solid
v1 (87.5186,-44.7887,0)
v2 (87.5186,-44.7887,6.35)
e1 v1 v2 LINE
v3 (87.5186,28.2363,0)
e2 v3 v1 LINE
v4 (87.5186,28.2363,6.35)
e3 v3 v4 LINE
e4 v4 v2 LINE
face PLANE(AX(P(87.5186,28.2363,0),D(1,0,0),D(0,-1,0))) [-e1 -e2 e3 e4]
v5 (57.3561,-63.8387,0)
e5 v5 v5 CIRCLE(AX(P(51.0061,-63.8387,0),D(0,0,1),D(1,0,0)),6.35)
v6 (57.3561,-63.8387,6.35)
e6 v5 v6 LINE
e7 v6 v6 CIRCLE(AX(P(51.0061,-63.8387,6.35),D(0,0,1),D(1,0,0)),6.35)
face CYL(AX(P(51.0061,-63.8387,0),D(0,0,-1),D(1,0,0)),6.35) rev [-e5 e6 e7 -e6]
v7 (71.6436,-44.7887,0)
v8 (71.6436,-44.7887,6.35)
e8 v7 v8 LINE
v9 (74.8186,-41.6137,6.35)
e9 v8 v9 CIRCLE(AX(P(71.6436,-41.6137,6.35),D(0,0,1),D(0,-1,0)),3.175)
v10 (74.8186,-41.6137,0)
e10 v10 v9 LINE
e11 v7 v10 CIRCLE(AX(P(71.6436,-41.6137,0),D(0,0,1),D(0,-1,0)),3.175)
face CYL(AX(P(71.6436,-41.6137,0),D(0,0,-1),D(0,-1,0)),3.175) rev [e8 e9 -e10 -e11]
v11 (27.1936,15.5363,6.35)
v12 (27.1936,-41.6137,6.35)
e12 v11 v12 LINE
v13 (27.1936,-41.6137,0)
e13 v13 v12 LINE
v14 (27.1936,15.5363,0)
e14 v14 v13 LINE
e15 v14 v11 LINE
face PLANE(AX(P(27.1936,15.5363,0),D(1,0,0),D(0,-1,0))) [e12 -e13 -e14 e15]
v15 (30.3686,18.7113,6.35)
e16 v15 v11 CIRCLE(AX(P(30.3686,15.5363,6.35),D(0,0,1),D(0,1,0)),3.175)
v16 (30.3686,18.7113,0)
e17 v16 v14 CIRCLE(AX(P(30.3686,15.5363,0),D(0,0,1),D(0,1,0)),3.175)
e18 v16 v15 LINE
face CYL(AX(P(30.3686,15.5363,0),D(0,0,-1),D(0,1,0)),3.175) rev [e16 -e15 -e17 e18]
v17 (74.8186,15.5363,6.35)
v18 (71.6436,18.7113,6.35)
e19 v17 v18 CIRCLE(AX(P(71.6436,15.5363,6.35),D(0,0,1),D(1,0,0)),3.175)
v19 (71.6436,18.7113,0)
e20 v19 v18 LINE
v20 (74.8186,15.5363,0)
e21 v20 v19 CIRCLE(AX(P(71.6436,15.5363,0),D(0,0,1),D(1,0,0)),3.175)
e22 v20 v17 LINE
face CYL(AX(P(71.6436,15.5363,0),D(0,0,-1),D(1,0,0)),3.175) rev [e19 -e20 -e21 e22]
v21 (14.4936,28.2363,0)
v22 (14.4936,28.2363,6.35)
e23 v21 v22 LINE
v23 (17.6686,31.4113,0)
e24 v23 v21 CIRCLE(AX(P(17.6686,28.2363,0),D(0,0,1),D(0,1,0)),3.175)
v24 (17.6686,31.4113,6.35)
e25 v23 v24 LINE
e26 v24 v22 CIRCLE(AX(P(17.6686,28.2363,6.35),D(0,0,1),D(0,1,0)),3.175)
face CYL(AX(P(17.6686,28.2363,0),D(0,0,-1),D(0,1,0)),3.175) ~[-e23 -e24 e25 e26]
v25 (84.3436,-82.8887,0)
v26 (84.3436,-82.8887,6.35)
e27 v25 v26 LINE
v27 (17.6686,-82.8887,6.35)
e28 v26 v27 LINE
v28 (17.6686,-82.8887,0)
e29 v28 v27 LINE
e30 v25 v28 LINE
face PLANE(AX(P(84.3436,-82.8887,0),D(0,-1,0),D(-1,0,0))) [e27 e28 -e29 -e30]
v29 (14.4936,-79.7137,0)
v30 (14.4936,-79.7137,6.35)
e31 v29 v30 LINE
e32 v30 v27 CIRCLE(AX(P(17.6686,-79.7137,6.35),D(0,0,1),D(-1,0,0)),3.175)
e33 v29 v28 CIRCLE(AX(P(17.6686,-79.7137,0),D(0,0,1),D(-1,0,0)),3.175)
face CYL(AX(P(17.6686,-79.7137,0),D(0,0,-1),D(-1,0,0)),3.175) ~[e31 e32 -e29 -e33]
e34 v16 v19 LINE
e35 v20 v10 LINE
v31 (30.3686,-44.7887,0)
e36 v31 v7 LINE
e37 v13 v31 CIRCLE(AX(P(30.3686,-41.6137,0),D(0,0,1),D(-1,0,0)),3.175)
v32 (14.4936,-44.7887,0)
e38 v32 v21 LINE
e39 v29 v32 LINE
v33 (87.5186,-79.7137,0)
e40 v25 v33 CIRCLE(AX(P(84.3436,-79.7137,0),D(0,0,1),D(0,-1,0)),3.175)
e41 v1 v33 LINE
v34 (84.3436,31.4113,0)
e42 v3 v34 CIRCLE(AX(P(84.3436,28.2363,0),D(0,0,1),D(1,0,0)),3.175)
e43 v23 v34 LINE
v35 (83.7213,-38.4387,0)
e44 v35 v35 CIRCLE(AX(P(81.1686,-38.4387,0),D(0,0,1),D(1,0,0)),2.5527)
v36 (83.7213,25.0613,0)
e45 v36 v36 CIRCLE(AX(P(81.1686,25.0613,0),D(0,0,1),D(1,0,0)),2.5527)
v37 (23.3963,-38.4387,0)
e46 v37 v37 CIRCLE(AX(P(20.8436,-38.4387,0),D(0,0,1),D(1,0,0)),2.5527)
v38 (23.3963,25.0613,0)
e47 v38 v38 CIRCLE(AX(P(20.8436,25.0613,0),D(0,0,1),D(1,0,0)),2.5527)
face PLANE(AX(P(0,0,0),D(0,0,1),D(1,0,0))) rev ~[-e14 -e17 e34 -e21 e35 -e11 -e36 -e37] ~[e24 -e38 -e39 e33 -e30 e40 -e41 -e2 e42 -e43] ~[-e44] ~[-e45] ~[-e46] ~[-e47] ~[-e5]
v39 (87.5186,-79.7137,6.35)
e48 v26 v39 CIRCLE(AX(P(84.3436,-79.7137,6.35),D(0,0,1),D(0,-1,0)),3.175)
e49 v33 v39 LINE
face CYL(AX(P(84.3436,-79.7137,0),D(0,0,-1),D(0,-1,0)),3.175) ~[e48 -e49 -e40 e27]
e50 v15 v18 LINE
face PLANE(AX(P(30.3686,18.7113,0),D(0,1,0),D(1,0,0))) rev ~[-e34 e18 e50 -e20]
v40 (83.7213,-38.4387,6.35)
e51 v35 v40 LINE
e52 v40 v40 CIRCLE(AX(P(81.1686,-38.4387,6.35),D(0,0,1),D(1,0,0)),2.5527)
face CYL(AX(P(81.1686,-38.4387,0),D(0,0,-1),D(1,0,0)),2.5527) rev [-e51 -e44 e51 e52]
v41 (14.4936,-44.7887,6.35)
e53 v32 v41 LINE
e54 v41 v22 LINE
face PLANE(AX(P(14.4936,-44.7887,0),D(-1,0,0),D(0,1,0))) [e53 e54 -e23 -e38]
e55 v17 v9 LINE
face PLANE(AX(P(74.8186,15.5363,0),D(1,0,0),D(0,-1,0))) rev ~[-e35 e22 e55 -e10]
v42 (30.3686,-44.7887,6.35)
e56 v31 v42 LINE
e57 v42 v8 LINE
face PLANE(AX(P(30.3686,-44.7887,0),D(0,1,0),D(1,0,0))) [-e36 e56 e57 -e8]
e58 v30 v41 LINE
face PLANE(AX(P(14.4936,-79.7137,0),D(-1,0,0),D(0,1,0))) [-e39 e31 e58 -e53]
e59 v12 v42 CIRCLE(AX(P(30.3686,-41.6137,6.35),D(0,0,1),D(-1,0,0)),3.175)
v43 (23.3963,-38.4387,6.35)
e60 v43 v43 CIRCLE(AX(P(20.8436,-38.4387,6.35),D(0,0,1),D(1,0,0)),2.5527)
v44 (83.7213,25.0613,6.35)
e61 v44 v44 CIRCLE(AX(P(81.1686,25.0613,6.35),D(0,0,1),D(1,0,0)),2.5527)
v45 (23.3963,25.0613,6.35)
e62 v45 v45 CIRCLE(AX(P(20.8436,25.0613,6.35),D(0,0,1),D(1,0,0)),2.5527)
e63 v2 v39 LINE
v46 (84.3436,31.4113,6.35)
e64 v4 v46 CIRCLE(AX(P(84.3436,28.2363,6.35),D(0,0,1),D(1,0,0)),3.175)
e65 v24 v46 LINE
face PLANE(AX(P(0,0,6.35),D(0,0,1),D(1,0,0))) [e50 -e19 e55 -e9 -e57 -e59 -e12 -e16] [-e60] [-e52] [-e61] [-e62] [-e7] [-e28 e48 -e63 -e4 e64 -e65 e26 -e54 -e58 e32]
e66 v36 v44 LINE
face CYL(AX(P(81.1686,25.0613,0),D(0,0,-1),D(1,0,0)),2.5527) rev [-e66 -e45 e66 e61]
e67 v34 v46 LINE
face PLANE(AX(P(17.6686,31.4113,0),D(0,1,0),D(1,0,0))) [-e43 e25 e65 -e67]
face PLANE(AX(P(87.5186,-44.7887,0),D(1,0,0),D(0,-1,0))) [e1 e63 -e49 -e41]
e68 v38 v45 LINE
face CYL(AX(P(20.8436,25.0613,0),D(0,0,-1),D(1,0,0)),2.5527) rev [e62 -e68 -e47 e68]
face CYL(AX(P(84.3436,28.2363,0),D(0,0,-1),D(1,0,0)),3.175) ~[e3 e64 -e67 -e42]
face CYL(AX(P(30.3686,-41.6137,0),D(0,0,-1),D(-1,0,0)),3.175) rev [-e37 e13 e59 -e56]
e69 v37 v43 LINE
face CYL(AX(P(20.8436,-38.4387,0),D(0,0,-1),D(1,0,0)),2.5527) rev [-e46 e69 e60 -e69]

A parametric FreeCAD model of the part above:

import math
import FreeCAD as App
import Part
import Sketcher
Q = App.Units.Quantity

doc = App.newDocument("Part")
body = doc.addObject("PartDesign::Body", "Body")

# Sketch on XY plane
sketch1 = doc.addObject("Sketcher::SketchObject", "Sketch")
body.addObject(sketch1)
sketch1.AttachmentSupport = (doc.XY_Plane, [""])
sketch1.MapMode = "FlatFace"
sketch1.addGeometry(Part.LineSegment(App.Vector(84.3, 31.4, 0), App.Vector(17.7, 31.4, 0)), False)
sketch1.addGeometry(Part.ArcOfCircle(Part.Circle(App.Vector(17.7, 28.2, 0), App.Vector(0, 0, 1), 3.2), math.radians(90), math.radians(180)), False)
sketch1.addGeometry(Part.LineSegment(App.Vector(14.5, 28.2, 0), App.Vector(14.5, -79.7, 0)), False)
sketch1.addGeometry(Part.ArcOfCircle(Part.Circle(App.Vector(17.7, -79.7, 0), App.Vector(0, 0, 1), 3.2), math.radians(180), math.radians(270)), False)
sketch1.addGeometry(Part.LineSegment(App.Vector(17.7, -82.9, 0), App.Vector(84.3, -82.9, 0)), False)
sketch1.addGeometry(Part.ArcOfCircle(Part.Circle(App.Vector(84.3, -79.7, 0), App.Vector(0, 0, 1), 3.2), math.radians(-90), math.radians(0)), False)
sketch1.addGeometry(Part.LineSegment(App.Vector(87.5, -79.7, 0), App.Vector(87.5, 28.2, 0)), False)
sketch1.addGeometry(Part.ArcOfCircle(Part.Circle(App.Vector(84.3, 28.2, 0), App.Vector(0, 0, 1), 3.2), math.radians(0), math.radians(90)), False)
sketch1.addGeometry(Part.Circle(App.Vector(20.8, -38.4, 0), App.Vector(0, 0, 1), 2.6), False)
sketch1.addGeometry(Part.Circle(App.Vector(51, -63.8, 0), App.Vector(0, 0, 1), 6.3), False)
sketch1.addGeometry(Part.Circle(App.Vector(81.2, -38.4, 0), App.Vector(0, 0, 1), 2.6), False)
sketch1.addGeometry(Part.Circle(App.Vector(20.8, 25.1, 0), App.Vector(0, 0, 1), 2.6), False)
sketch1.addGeometry(Part.ArcOfCircle(Part.Circle(App.Vector(30.4, 15.5, 0), App.Vector(0, 0, 1), 3.2), math.radians(90), math.radians(180)), False)
sketch1.addGeometry(Part.LineSegment(App.Vector(30.4, 18.7, 0), App.Vector(71.6, 18.7, 0)), False)
sketch1.addGeometry(Part.ArcOfCircle(Part.Circle(App.Vector(71.6, 15.5, 0), App.Vector(0, 0, 1), 3.2), math.radians(0), math.radians(90)), False)
sketch1.addGeometry(Part.LineSegment(App.Vector(74.8, 15.5, 0), App.Vector(74.8, -41.6, 0)), False)
sketch1.addGeometry(Part.ArcOfCircle(Part.Circle(App.Vector(71.6, -41.6, 0), App.Vector(0, 0, 1), 3.2), math.radians(-90), math.radians(0)), False)
sketch1.addGeometry(Part.LineSegment(App.Vector(71.6, -44.8, 0), App.Vector(30.4, -44.8, 0)), False)
sketch1.addGeometry(Part.ArcOfCircle(Part.Circle(App.Vector(30.4, -41.6, 0), App.Vector(0, 0, 1), 3.2), math.radians(180), math.radians(270)), False)
sketch1.addGeometry(Part.LineSegment(App.Vector(27.2, -41.6, 0), App.Vector(27.2, 15.5, 0)), False)
sketch1.addGeometry(Part.Circle(App.Vector(81.2, 25.1, 0), App.Vector(0, 0, 1), 2.6), False)
sketch1.addConstraint(Sketcher.Constraint("Tangent", 0, 2, 1, 1))
sketch1.addConstraint(Sketcher.Constraint("Tangent", 1, 2, 2, 1))
sketch1.addConstraint(Sketcher.Constraint("Tangent", 2, 2, 3, 1))
sketch1.addConstraint(Sketcher.Constraint("Tangent", 3, 2, 4, 1))
sketch1.addConstraint(Sketcher.Constraint("Tangent", 4, 2, 5, 1))
sketch1.addConstraint(Sketcher.Constraint("Tangent", 5, 2, 6, 1))
sketch1.addConstraint(Sketcher.Constraint("Tangent", 6, 2, 7, 1))
sketch1.addConstraint(Sketcher.Constraint("Tangent", 7, 2, 0, 1))
sketch1.addConstraint(Sketcher.Constraint("Tangent", 12, 1, 13, 1))
sketch1.addConstraint(Sketcher.Constraint("Tangent", 13, 2, 14, 2))
sketch1.addConstraint(Sketcher.Constraint("Tangent", 14, 1, 15, 1))
sketch1.addConstraint(Sketcher.Constraint("Tangent", 15, 2, 16, 2))
sketch1.addConstraint(Sketcher.Constraint("Tangent", 16, 1, 17, 1))
sketch1.addConstraint(Sketcher.Constraint("Tangent", 17, 2, 18, 2))
sketch1.addConstraint(Sketcher.Constraint("Tangent", 18, 1, 19, 1))
sketch1.addConstraint(Sketcher.Constraint("Tangent", 19, 2, 12, 2))
sketch1.addConstraint(Sketcher.Constraint("Horizontal", 0))
sketch1.addConstraint(Sketcher.Constraint("Vertical", 2))
sketch1.addConstraint(Sketcher.Constraint("Horizontal", 4))
sketch1.addConstraint(Sketcher.Constraint("Vertical", 6))
sketch1.addConstraint(Sketcher.Constraint("Horizontal", 13))
sketch1.addConstraint(Sketcher.Constraint("Vertical", 15))
sketch1.addConstraint(Sketcher.Constraint("Horizontal", 17))
sketch1.addConstraint(Sketcher.Constraint("Vertical", 19))
sketch1.addConstraint(Sketcher.Constraint("Equal", 1, 3))
sketch1.addConstraint(Sketcher.Constraint("Equal", 3, 5))
sketch1.addConstraint(Sketcher.Constraint("Equal", 5, 7))
sketch1.addConstraint(Sketcher.Constraint("Equal", 8, 10))
sketch1.addConstraint(Sketcher.Constraint("Equal", 10, 11))
sketch1.addConstraint(Sketcher.Constraint("Equal", 7, 12))
sketch1.addConstraint(Sketcher.Constraint("Equal", 12, 14))
sketch1.addConstraint(Sketcher.Constraint("Equal", 14, 16))
sketch1.addConstraint(Sketcher.Constraint("Equal", 16, 18))
sketch1.addConstraint(Sketcher.Constraint("Equal", 11, 20))
sketch1.addConstraint(Sketcher.Constraint("Horizontal", 8, 3, 10, 3))
sketch1.addConstraint(Sketcher.Constraint("Horizontal", 11, 3, 20, 3))
sketch1.addConstraint(Sketcher.Constraint("Vertical", 8, 3, 11, 3))
sketch1.addConstraint(Sketcher.Constraint("Vertical", 10, 3, 20, 3))
sketch1.addConstraint(Sketcher.Constraint("Diameter", 9, Q("0.5 in")))
sketch1.addConstraint(Sketcher.Constraint("Diameter", 8, Q("0.201 in")))
sketch1.addConstraint(Sketcher.Constraint("Radius", 1, Q("0.125 in")))
sketch1.addConstraint(Sketcher.Constraint("DistanceX", 8, 3, 5, 3, Q("2.5 in")))
sketch1.addConstraint(Sketcher.Constraint("DistanceX", 3, 3, 10, 3, Q("2.5 in")))
sketch1.addConstraint(Sketcher.Constraint("DistanceY", 8, 3, 11, 3, Q("2.5 in")))
sketch1.addConstraint(Sketcher.Constraint("DistanceX", 1, 3, 12, 3, Q("0.5 in")))
sketch1.addConstraint(Sketcher.Constraint("DistanceY", 12, 3, 1, 3, Q("0.5 in")))
sketch1.addConstraint(Sketcher.Constraint("DistanceX", 14, 3, 7, 3, Q("0.5 in")))
sketch1.addConstraint(Sketcher.Constraint("DistanceY", 5, 3, 16, 3, Q("1.5 in")))
sketch1.addConstraint(Sketcher.Constraint("DistanceY", 11, 3, 0, 2, Q("0.25 in")))
sketch1.addConstraint(Sketcher.Constraint("DistanceX", 1, 2, 11, 3, Q("0.25 in")))
sketch1.addConstraint(Sketcher.Constraint("DistanceY", 3, 2, 9, 3, Q("0.75 in")))
sketch1.addConstraint(Sketcher.Constraint("DistanceY", 16, 1, 10, 3, Q("0.25 in")))
sketch1.addConstraint(Sketcher.Constraint("DistanceX", 2, 2, 9, 3, Q("1.4375 in")))
sketch1.addConstraint(Sketcher.Constraint("DistanceX", -1, 1, 1, 3, Q("17.6686 mm")))
sketch1.addConstraint(Sketcher.Constraint("DistanceY", -1, 1, 1, 3, Q("28.2363 mm")))
pad1 = doc.addObject("PartDesign::Pad", "Pad")
body.addObject(pad1)
pad1.Profile = sketch1
pad1.Length = Q("0.25 in")

doc.recompute()
